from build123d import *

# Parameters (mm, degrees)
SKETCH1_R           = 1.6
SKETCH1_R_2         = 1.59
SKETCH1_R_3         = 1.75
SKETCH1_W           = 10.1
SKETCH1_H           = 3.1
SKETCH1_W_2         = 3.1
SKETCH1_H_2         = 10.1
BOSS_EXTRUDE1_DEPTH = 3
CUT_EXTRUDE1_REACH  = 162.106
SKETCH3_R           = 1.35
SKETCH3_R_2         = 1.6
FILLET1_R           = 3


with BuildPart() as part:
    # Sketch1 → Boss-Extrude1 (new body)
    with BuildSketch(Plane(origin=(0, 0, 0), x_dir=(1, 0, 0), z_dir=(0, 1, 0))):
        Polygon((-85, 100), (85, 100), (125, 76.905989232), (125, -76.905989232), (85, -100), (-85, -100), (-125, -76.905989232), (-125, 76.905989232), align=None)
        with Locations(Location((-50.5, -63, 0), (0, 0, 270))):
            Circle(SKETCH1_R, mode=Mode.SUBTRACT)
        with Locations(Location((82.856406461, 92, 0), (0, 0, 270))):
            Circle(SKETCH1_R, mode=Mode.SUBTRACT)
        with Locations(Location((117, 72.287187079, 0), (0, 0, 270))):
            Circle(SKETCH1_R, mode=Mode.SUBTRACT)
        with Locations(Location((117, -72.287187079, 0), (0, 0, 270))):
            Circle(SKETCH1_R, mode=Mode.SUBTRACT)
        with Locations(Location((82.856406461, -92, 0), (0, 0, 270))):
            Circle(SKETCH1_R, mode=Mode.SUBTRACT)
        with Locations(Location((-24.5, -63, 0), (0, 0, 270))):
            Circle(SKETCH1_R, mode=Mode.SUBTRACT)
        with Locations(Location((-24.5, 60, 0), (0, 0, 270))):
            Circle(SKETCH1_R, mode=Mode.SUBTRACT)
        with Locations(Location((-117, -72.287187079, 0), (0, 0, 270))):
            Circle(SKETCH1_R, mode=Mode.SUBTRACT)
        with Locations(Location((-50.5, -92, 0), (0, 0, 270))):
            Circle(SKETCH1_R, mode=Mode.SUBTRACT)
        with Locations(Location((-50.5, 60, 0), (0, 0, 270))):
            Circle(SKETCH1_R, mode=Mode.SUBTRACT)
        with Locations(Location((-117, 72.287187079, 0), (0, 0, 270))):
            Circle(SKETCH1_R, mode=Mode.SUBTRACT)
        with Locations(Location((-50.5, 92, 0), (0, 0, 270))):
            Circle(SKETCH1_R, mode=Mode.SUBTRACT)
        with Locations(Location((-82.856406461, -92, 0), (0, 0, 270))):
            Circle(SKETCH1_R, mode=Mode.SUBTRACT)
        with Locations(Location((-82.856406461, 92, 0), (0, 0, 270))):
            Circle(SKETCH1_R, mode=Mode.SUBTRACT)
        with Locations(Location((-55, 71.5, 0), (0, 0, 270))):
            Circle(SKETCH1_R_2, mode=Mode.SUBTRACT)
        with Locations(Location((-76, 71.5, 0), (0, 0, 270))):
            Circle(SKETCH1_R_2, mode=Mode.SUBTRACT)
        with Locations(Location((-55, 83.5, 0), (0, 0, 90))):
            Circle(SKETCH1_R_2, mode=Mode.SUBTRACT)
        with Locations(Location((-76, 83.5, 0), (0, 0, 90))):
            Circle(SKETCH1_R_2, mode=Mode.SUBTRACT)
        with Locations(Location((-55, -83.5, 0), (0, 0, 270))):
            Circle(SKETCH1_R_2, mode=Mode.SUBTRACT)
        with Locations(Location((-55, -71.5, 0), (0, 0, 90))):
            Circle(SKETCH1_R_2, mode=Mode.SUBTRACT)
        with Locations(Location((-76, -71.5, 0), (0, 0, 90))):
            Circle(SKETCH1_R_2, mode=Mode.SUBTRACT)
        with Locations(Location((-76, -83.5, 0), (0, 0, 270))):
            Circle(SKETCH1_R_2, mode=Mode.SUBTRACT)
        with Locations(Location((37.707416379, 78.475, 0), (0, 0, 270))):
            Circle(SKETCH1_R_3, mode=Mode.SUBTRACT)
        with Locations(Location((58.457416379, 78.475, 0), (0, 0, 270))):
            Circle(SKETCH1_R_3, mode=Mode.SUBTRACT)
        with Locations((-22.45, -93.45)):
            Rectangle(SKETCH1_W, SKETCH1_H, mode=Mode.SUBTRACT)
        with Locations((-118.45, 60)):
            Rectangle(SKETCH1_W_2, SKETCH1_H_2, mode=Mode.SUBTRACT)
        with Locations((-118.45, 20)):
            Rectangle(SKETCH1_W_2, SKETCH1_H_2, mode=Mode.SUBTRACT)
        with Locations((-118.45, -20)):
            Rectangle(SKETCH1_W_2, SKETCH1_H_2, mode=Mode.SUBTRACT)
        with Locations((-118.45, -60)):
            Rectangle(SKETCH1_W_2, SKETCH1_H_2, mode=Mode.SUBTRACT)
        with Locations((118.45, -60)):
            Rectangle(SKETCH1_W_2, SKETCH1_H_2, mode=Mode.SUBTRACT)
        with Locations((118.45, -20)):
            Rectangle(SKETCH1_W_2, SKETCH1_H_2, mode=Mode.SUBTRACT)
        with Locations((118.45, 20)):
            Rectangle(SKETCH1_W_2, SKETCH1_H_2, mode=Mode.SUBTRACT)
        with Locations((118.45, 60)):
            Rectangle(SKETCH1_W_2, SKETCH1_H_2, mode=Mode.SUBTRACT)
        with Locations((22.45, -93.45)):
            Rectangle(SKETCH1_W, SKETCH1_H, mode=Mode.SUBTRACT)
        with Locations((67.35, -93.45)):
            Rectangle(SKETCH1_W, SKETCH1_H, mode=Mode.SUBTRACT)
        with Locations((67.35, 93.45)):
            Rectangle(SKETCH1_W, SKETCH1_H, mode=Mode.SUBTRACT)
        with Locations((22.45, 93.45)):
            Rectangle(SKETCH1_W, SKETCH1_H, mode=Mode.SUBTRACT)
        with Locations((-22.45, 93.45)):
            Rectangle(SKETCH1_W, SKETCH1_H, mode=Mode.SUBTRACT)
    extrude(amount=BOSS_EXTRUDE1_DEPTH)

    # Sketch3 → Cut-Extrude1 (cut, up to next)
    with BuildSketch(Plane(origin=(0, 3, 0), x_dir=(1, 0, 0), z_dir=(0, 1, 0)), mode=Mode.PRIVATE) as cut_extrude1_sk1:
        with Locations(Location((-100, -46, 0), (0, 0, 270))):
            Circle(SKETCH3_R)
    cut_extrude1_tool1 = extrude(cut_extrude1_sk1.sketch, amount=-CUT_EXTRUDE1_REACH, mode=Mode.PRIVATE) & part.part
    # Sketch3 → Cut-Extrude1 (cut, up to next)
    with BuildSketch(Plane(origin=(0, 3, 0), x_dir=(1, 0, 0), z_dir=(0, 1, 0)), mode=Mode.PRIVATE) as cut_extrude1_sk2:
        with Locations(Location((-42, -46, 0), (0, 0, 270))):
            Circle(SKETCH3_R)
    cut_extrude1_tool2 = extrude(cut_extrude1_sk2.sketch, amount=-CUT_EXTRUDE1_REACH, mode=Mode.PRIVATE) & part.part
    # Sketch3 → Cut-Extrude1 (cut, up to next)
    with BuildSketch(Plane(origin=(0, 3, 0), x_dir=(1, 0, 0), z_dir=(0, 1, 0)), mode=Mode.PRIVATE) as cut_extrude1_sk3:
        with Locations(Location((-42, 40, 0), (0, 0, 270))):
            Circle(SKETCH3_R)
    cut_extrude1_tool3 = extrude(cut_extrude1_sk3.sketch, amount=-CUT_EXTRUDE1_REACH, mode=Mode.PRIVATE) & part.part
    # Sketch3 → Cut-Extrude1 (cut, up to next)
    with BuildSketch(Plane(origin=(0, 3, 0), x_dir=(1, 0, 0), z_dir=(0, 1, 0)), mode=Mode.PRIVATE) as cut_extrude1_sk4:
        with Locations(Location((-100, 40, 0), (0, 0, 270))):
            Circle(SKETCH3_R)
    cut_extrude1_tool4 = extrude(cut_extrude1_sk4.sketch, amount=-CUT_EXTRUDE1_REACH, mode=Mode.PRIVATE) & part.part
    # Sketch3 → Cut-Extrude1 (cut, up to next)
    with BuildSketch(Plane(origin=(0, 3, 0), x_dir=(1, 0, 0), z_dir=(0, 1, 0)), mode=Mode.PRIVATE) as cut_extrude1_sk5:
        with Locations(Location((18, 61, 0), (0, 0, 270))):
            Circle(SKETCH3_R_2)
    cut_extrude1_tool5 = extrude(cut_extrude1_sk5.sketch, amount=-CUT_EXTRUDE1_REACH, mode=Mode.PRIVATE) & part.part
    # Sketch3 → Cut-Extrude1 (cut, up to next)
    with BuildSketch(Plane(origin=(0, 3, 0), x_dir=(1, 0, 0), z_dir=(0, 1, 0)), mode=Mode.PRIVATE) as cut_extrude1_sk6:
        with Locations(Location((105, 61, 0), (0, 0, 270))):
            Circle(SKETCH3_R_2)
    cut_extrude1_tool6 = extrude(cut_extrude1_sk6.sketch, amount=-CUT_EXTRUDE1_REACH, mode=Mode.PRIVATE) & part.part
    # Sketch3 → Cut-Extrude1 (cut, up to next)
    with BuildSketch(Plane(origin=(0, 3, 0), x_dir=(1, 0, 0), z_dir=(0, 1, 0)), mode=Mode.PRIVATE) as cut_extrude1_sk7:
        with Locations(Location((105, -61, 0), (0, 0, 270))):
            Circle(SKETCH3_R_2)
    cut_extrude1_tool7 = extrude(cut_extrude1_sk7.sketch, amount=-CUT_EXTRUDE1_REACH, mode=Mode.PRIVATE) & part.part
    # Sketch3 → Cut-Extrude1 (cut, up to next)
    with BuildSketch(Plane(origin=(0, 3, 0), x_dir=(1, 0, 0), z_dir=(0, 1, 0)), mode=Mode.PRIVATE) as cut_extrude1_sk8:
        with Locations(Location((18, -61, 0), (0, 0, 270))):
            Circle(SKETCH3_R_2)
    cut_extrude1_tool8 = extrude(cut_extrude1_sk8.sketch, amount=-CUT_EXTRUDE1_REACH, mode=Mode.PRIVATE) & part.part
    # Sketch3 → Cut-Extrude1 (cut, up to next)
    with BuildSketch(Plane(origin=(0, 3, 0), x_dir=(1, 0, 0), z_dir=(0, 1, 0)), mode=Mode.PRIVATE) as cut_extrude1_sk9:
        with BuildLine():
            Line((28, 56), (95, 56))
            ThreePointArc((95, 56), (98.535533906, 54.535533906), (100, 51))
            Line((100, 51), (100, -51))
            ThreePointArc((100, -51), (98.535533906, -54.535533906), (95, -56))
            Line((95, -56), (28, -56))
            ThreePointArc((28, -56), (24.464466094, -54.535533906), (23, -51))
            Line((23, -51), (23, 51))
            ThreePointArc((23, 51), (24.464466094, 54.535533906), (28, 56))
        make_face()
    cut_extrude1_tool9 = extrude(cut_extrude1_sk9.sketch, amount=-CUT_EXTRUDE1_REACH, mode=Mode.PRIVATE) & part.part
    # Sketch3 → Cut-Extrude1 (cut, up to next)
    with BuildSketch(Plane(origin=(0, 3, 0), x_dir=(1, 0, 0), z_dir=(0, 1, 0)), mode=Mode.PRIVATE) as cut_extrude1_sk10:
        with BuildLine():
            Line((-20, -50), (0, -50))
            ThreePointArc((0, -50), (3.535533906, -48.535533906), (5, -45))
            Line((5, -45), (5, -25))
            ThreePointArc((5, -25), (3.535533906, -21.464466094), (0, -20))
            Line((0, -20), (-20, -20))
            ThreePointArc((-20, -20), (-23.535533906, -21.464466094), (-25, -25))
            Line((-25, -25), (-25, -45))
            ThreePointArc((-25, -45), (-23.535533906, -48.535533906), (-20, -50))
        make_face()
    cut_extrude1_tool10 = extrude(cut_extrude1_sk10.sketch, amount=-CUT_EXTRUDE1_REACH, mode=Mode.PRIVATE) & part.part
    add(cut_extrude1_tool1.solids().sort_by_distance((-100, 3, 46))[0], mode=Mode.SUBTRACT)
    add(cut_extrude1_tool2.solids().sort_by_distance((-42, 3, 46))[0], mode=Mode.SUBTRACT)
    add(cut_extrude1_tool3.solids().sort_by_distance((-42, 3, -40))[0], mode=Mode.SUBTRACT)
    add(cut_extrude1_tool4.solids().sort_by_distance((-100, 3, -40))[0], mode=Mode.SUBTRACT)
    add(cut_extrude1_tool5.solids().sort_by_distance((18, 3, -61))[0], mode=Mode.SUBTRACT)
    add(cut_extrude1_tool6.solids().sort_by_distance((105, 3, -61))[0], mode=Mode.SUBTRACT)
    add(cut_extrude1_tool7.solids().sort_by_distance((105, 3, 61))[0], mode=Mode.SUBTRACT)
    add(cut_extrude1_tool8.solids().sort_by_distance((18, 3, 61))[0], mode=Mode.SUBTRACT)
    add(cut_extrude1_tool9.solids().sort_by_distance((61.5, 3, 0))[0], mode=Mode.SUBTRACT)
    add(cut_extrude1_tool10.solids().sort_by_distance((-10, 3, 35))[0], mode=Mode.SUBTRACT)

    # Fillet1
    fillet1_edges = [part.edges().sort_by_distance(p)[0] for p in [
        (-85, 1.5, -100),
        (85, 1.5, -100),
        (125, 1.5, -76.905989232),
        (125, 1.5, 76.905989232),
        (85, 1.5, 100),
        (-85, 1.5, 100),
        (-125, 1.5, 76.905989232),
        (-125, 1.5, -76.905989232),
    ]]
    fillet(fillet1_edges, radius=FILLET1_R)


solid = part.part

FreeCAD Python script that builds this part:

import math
import FreeCAD as App
import Part
import Sketcher

V = App.Vector
Q = App.Units.Quantity


def edges_at(feature, points):
    """Names of the edges that pass closest to the given points."""
    edges = feature.Shape.Edges
    near = lambda p: min(range(len(edges)), key=lambda i: edges[i].distToShape(Part.Vertex(*p))[0])
    return sorted({f"Edge{near(p) + 1}" for p in points})


def add_polygon(sketch, points):
    """Adds a closed chain of lines whose ends are joined by coincident constraints."""
    first, n = sketch.GeometryCount, len(points)
    for a, b in zip(points, points[1:] + points[:1]):
        sketch.addGeometry(Part.LineSegment(App.Vector(*a, 0), App.Vector(*b, 0)), False)
    for i in range(n):
        sketch.addConstraint(Sketcher.Constraint("Coincident", first + i, 2, first + (i + 1) % n, 1))

doc = App.newDocument("Part")
body = doc.addObject("PartDesign::Body", "Body")

# Sketch on XZ plane
sketch1 = body.newObject("Sketcher::SketchObject", "Sketch")
sketch1.AttachmentSupport = (doc.getObject("XZ_Plane"), [""])
sketch1.MapMode = "FlatFace"
add_polygon(sketch1, [(85, -100), (-85, -100), (-125, -76.905989), (-125, 76.905989), (-85, 100), (85, 100), (125, 76.905989), (125, -76.905989)])  # lines 0-7
sketch1.addGeometry(Part.Circle(V(117, 72.287187, 0), V(0, 0, 1), 1.6), False)  # 8
sketch1.addGeometry(Part.Circle(V(82.856406, 92, 0), V(0, 0, 1), 1.6), False)  # 9
add_polygon(sketch1, [(62.3, 95), (62.3, 91.9), (72.4, 91.9), (72.4, 95)])  # lines 10-13
add_polygon(sketch1, [(116.9, 65.05), (116.9, 54.95), (120, 54.95), (120, 65.05)])  # lines 14-17
add_polygon(sketch1, [(17.4, 95), (17.4, 91.9), (27.5, 91.9), (27.5, 95)])  # lines 18-21
add_polygon(sketch1, [(116.9, 25.05), (116.9, 14.95), (120, 14.95), (120, 25.05)])  # lines 22-25
add_polygon(sketch1, [(-27.5, 95), (-27.5, 91.9), (-17.4, 91.9), (-17.4, 95)])  # lines 26-29
sketch1.addGeometry(Part.Circle(V(-50.5, 92, 0), V(0, 0, 1), 1.6), False)  # 30
sketch1.addGeometry(Part.Circle(V(-55, 83.5, 0), V(0, 0, 1), 1.59), False)  # 31
sketch1.addGeometry(Part.Circle(V(-55, 71.5, 0), V(0, 0, 1), 1.59), False)  # 32
sketch1.addGeometry(Part.Circle(V(-24.5, 63, 0), V(0, 0, 1), 1.6), False)  # 33
sketch1.addGeometry(Part.Circle(V(-50.5, 63, 0), V(0, 0, 1), 1.6), False)  # 34
sketch1.addGeometry(Part.Circle(V(-82.856406, 92, 0), V(0, 0, 1), 1.6), False)  # 35
sketch1.addGeometry(Part.Circle(V(-76, 83.5, 0), V(0, 0, 1), 1.59), False)  # 36
sketch1.addGeometry(Part.Circle(V(-76, 71.5, 0), V(0, 0, 1), 1.59), False)  # 37
sketch1.addGeometry(Part.Circle(V(-117, 72.287187, 0), V(0, 0, 1), 1.6), False)  # 38
add_polygon(sketch1, [(-120, 65.05), (-120, 54.95), (-116.9, 54.95), (-116.9, 65.05)])  # lines 39-42
add_polygon(sketch1, [(-120, 25.05), (-120, 14.95), (-116.9, 14.95), (-116.9, 25.05)])  # lines 43-46
add_polygon(sketch1, [(116.9, -14.95), (116.9, -25.05), (120, -25.05), (120, -14.95)])  # lines 47-50
add_polygon(sketch1, [(116.9, -54.95), (116.9, -65.05), (120, -65.05), (120, -54.95)])  # lines 51-54
sketch1.addGeometry(Part.Circle(V(117, -72.287187, 0), V(0, 0, 1), 1.6), False)  # 55
sketch1.addGeometry(Part.Circle(V(82.856406, -92, 0), V(0, 0, 1), 1.6), False)  # 56
add_polygon(sketch1, [(62.3, -91.9), (62.3, -95), (72.4, -95), (72.4, -91.9)])  # lines 57-60
sketch1.addGeometry(Part.Circle(V(58.457416, -78.475, 0), V(0, 0, 1), 1.75), False)  # 61
sketch1.addGeometry(Part.Circle(V(37.707416, -78.475, 0), V(0, 0, 1), 1.75), False)  # 62
add_polygon(sketch1, [(17.4, -91.9), (17.4, -95), (27.5, -95), (27.5, -91.9)])  # lines 63-66
add_polygon(sketch1, [(-120, -14.95), (-120, -25.05), (-116.9, -25.05), (-116.9, -14.95)])  # lines 67-70
sketch1.addGeometry(Part.Circle(V(-24.5, -60, 0), V(0, 0, 1), 1.6), False)  # 71
sketch1.addGeometry(Part.Circle(V(-50.5, -60, 0), V(0, 0, 1), 1.6), False)  # 72
add_polygon(sketch1, [(-27.5, -91.9), (-27.5, -95), (-17.4, -95), (-17.4, -91.9)])  # lines 73-76
sketch1.addGeometry(Part.Circle(V(-55, -71.5, 0), V(0, 0, 1), 1.59), False)  # 77
sketch1.addGeometry(Part.Circle(V(-55, -83.5, 0), V(0, 0, 1), 1.59), False)  # 78
sketch1.addGeometry(Part.Circle(V(-50.5, -92, 0), V(0, 0, 1), 1.6), False)  # 79
add_polygon(sketch1, [(-120, -54.95), (-120, -65.05), (-116.9, -65.05), (-116.9, -54.95)])  # lines 80-83
sketch1.addGeometry(Part.Circle(V(-76, -71.5, 0), V(0, 0, 1), 1.59), False)  # 84
sketch1.addGeometry(Part.Circle(V(-76, -83.5, 0), V(0, 0, 1), 1.59), False)  # 85
sketch1.addGeometry(Part.Circle(V(-82.856406, -92, 0), V(0, 0, 1), 1.6), False)  # 86
sketch1.addGeometry(Part.Circle(V(-117, -72.287187, 0), V(0, 0, 1), 1.6), False)  # 87
sketch1.addConstraint(Sketcher.Constraint("Horizontal", 0))
sketch1.addConstraint(Sketcher.Constraint("Vertical", 2))
sketch1.addConstraint(Sketcher.Constraint("Horizontal", 4))
sketch1.addConstraint(Sketcher.Constraint("Vertical", 6))
sketch1.addConstraint(Sketcher.Constraint("Vertical", 10))
sketch1.addConstraint(Sketcher.Constraint("Horizontal", 11))
sketch1.addConstraint(Sketcher.Constraint("Vertical", 12))
sketch1.addConstraint(Sketcher.Constraint("Horizontal", 13))
sketch1.addConstraint(Sketcher.Constraint("Vertical", 14))
sketch1.addConstraint(Sketcher.Constraint("Horizontal", 15))
sketch1.addConstraint(Sketcher.Constraint("Vertical", 16))
sketch1.addConstraint(Sketcher.Constraint("Horizontal", 17))
sketch1.addConstraint(Sketcher.Constraint("Vertical", 18))
sketch1.addConstraint(Sketcher.Constraint("Horizontal", 19))
sketch1.addConstraint(Sketcher.Constraint("Vertical", 20))
sketch1.addConstraint(Sketcher.Constraint("Horizontal", 21))
sketch1.addConstraint(Sketcher.Constraint("Vertical", 22))
sketch1.addConstraint(Sketcher.Constraint("Horizontal", 23))
sketch1.addConstraint(Sketcher.Constraint("Vertical", 24))
sketch1.addConstraint(Sketcher.Constraint("Horizontal", 25))
sketch1.addConstraint(Sketcher.Constraint("Vertical", 26))
sketch1.addConstraint(Sketcher.Constraint("Horizontal", 27))
sketch1.addConstraint(Sketcher.Constraint("Vertical", 28))
sketch1.addConstraint(Sketcher.Constraint("Horizontal", 29))
sketch1.addConstraint(Sketcher.Constraint("Vertical", 39))
sketch1.addConstraint(Sketcher.Constraint("Horizontal", 40))
sketch1.addConstraint(Sketcher.Constraint("Vertical", 41))
sketch1.addConstraint(Sketcher.Constraint("Horizontal", 42))
sketch1.addConstraint(Sketcher.Constraint("Vertical", 43))
sketch1.addConstraint(Sketcher.Constraint("Horizontal", 44))
sketch1.addConstraint(Sketcher.Constraint("Vertical", 45))
sketch1.addConstraint(Sketcher.Constraint("Horizontal", 46))
sketch1.addConstraint(Sketcher.Constraint("Vertical", 47))
sketch1.addConstraint(Sketcher.Constraint("Horizontal", 48))
sketch1.addConstraint(Sketcher.Constraint("Vertical", 49))
sketch1.addConstraint(Sketcher.Constraint("Horizontal", 50))
sketch1.addConstraint(Sketcher.Constraint("Vertical", 51))
sketch1.addConstraint(Sketcher.Constraint("Horizontal", 52))
sketch1.addConstraint(Sketcher.Constraint("Vertical", 53))
sketch1.addConstraint(Sketcher.Constraint("Horizontal", 54))
sketch1.addConstraint(Sketcher.Constraint("Vertical", 57))
sketch1.addConstraint(Sketcher.Constraint("Horizontal", 58))
sketch1.addConstraint(Sketcher.Constraint("Vertical", 59))
sketch1.addConstraint(Sketcher.Constraint("Horizontal", 60))
sketch1.addConstraint(Sketcher.Constraint("Vertical", 63))
sketch1.addConstraint(Sketcher.Constraint("Horizontal", 64))
sketch1.addConstraint(Sketcher.Constraint("Vertical", 65))
sketch1.addConstraint(Sketcher.Constraint("Horizontal", 66))
sketch1.addConstraint(Sketcher.Constraint("Vertical", 67))
sketch1.addConstraint(Sketcher.Constraint("Horizontal", 68))
sketch1.addConstraint(Sketcher.Constraint("Vertical", 69))
sketch1.addConstraint(Sketcher.Constraint("Horizontal", 70))
sketch1.addConstraint(Sketcher.Constraint("Vertical", 73))
sketch1.addConstraint(Sketcher.Constraint("Horizontal", 74))
sketch1.addConstraint(Sketcher.Constraint("Vertical", 75))
sketch1.addConstraint(Sketcher.Constraint("Horizontal", 76))
sketch1.addConstraint(Sketcher.Constraint("Vertical", 80))
sketch1.addConstraint(Sketcher.Constraint("Horizontal", 81))
sketch1.addConstraint(Sketcher.Constraint("Vertical", 82))
sketch1.addConstraint(Sketcher.Constraint("Horizontal", 83))
sketch1.addConstraint(Sketcher.Constraint("Equal", 8, 9))
sketch1.addConstraint(Sketcher.Constraint("Equal", 9, 30))
sketch1.addConstraint(Sketcher.Constraint("Equal", 31, 32))
sketch1.addConstraint(Sketcher.Constraint("Equal", 30, 33))
sketch1.addConstraint(Sketcher.Constraint("Equal", 33, 34))
sketch1.addConstraint(Sketcher.Constraint("Equal", 34, 35))
sketch1.addConstraint(Sketcher.Constraint("Equal", 32, 36))
sketch1.addConstraint(Sketcher.Constraint("Equal", 36, 37))
sketch1.addConstraint(Sketcher.Constraint("Equal", 35, 38))
sketch1.addConstraint(Sketcher.Constraint("Equal", 38, 55))
sketch1.addConstraint(Sketcher.Constraint("Equal", 55, 56))
sketch1.addConstraint(Sketcher.Constraint("Equal", 61, 62))
sketch1.addConstraint(Sketcher.Constraint("Equal", 56, 71))
sketch1.addConstraint(Sketcher.Constraint("Equal", 71, 72))
sketch1.addConstraint(Sketcher.Constraint("Equal", 37, 77))
sketch1.addConstraint(Sketcher.Constraint("Equal", 77, 78))
sketch1.addConstraint(Sketcher.Constraint("Equal", 72, 79))
sketch1.addConstraint(Sketcher.Constraint("Equal", 78, 84))
sketch1.addConstraint(Sketcher.Constraint("Equal", 84, 85))
sketch1.addConstraint(Sketcher.Constraint("Equal", 79, 86))
sketch1.addConstraint(Sketcher.Constraint("Equal", 86, 87))
sketch1.addConstraint(Sketcher.Constraint("Symmetric", 38, 3, 55, 3, -1, 1))
sketch1.addConstraint(Sketcher.Constraint("Symmetric", 35, 3, 56, 3, -1, 1))
sketch1.addConstraint(Sketcher.Constraint("Symmetric", 9, 3, 86, 3, -1, 1))
sketch1.addConstraint(Sketcher.Constraint("Symmetric", 8, 3, 87, 3, -1, 1))
sketch1.addConstraint(Sketcher.Constraint("Symmetric", 0, 2, 4, 2, -1, 1))
sketch1.addConstraint(Sketcher.Constraint("Symmetric", 1, 2, 5, 2, -1, 1))
sketch1.addConstraint(Sketcher.Constraint("Symmetric", 45, 2, 47, 2, -1, 1))
sketch1.addConstraint(Sketcher.Constraint("Symmetric", 43, 2, 49, 2, -1, 1))
sketch1.addConstraint(Sketcher.Constraint("Symmetric", 41, 2, 51, 2, -1, 1))
sketch1.addConstraint(Sketcher.Constraint("Symmetric", 39, 2, 53, 2, -1, 1))
sketch1.addConstraint(Sketcher.Constraint("Symmetric", 28, 2, 63, 2, -1, 1))
sketch1.addConstraint(Sketcher.Constraint("Symmetric", 26, 2, 65, 2, -1, 1))
sketch1.addConstraint(Sketcher.Constraint("Symmetric", 24, 2, 67, 2, -1, 1))
sketch1.addConstraint(Sketcher.Constraint("Symmetric", 22, 2, 69, 2, -1, 1))
sketch1.addConstraint(Sketcher.Constraint("Symmetric", 20, 2, 73, 2, -1, 1))
sketch1.addConstraint(Sketcher.Constraint("Symmetric", 18, 2, 75, 2, -1, 1))
sketch1.addConstraint(Sketcher.Constraint("Symmetric", 16, 2, 80, 2, -1, 1))
sketch1.addConstraint(Sketcher.Constraint("Symmetric", 14, 2, 82, 2, -1, 1))
sketch1.addConstraint(Sketcher.Constraint("Symmetric", 9, 3, 35, 3, -2))
sketch1.addConstraint(Sketcher.Constraint("Symmetric", 8, 3, 38, 3, -2))
sketch1.addConstraint(Sketcher.Constraint("Symmetric", 19, 2, 26, 2, -2))
sketch1.addConstraint(Sketcher.Constraint("Symmetric", 21, 2, 28, 2, -2))
sketch1.addConstraint(Sketcher.Constraint("Symmetric", 15, 2, 39, 2, -2))
sketch1.addConstraint(Sketcher.Constraint("Symmetric", 17, 2, 41, 2, -2))
sketch1.addConstraint(Sketcher.Constraint("Symmetric", 23, 2, 43, 2, -2))
sketch1.addConstraint(Sketcher.Constraint("Symmetric", 25, 2, 45, 2, -2))
sketch1.addConstraint(Sketcher.Constraint("Symmetric", 32, 3, 77, 3, -1))
sketch1.addConstraint(Sketcher.Constraint("Symmetric", 31, 3, 78, 3, -1))
sketch1.addConstraint(Sketcher.Constraint("Symmetric", 30, 3, 79, 3, -1))
sketch1.addConstraint(Sketcher.Constraint("Symmetric", 37, 3, 84, 3, -1))
sketch1.addConstraint(Sketcher.Constraint("Symmetric", 36, 3, 85, 3, -1))
sketch1.addConstraint(Sketcher.Constraint("Symmetric", 13, 2, 57, 2, -1))
sketch1.addConstraint(Sketcher.Constraint("Symmetric", 11, 2, 59, 2, -1))
sketch1.addConstraint(Sketcher.Constraint("Parallel", 3, 7))
sketch1.addConstraint(Sketcher.Constraint("Horizontal", 9, 3, 30, 3))
sketch1.addConstraint(Sketcher.Constraint("Horizontal", 33, 3, 34, 3))
sketch1.addConstraint(Sketcher.Constraint("Horizontal", 31, 3, 36, 3))
sketch1.addConstraint(Sketcher.Constraint("Horizontal", 32, 3, 37, 3))
sketch1.addConstraint(Sketcher.Constraint("Horizontal", 61, 3, 62, 3))
sketch1.addConstraint(Sketcher.Constraint("Horizontal", 71, 3, 72, 3))
sketch1.addConstraint(Sketcher.Constraint("Horizontal", 2, 2, 5, 2))
sketch1.addConstraint(Sketcher.Constraint("Horizontal", 1, 2, 6, 2))
sketch1.addConstraint(Sketcher.Constraint("Horizontal", 11, 2, 18, 2))
sketch1.addConstraint(Sketcher.Constraint("Horizontal", 13, 2, 20, 2))
sketch1.addConstraint(Sketcher.Constraint("Vertical", 31, 3, 32, 3))
sketch1.addConstraint(Sketcher.Constraint("Vertical", 30, 3, 34, 3))
sketch1.addConstraint(Sketcher.Constraint("Vertical", 36, 3, 37, 3))
sketch1.addConstraint(Sketcher.Constraint("Vertical", 33, 3, 71, 3))
sketch1.addConstraint(Sketcher.Constraint("Vertical", 34, 3, 72, 3))
sketch1.addConstraint(Sketcher.Constraint("Vertical", 0, 2, 3, 2))
sketch1.addConstraint(Sketcher.Constraint("Vertical", 17, 2, 22, 2))
sketch1.addConstraint(Sketcher.Constraint("Vertical", 16, 2, 23, 2))
sketch1.addConstraint(Sketcher.Constraint("Equal", 13, 19))
sketch1.addConstraint(Sketcher.Constraint("Equal", 83, 10))
sketch1.addConstraint(Sketcher.Constraint("Equal", 76, 14))
sketch1.addConstraint(Sketcher.Constraint("Equal", 16, 22))
sketch1.addConstraint(Sketcher.Constraint("Diameter", 8, 3.2))
sketch1.addConstraint(Sketcher.Constraint("Diameter", 61, 3.5))
sketch1.addConstraint(Sketcher.Constraint("Diameter", 31, 3.18))
sketch1.addConstraint(Sketcher.Constraint("DistanceX", 0, 2, 0, 1, 170.0))
sketch1.addConstraint(Sketcher.Constraint("Angle", 1, Q("150 deg")))
sketch1.addConstraint(Sketcher.Constraint("DistanceX", 11, 1, 11, 2, 10.1))
sketch1.addConstraint(Sketcher.Constraint("DistanceX", 15, 1, 15, 2, 3.1))
sketch1.addConstraint(Sketcher.Constraint("DistanceX", -1, 1, 8, 3, 117.0))
sketch1.addConstraint(Sketcher.Constraint("DistanceY", -1, 1, 9, 3, 92.0))
sketch1.addConstraint(Sketcher.Constraint("DistanceX", 31, 3, -1, 1, 55.0))
sketch1.addConstraint(Sketcher.Constraint("DistanceY", -1, 1, 33, 3, 63.0))
sketch1.addConstraint(Sketcher.Constraint("DistanceX", 36, 3, -1, 1, 76.0))
sketch1.addConstraint(Sketcher.Constraint("DistanceY", 71, 3, -1, 1, 60.0))
sketch1.addConstraint(Sketcher.Constraint("DistanceY", 0, 2, -1, 1, 100.0))
sketch1.addConstraint(Sketcher.Constraint("DistanceX", 1, 2, -1, 1, 125.0))
sketch1.addConstraint(Sketcher.Constraint("DistanceY", -1, 1, 12, 2, 95.0))
sketch1.addConstraint(Sketcher.Constraint("DistanceX", -1, 1, 15, 2, 120.0))
sketch1.addConstraint(Sketcher.Constraint("DistanceX", 30, 3, -1, 1, 50.5))
sketch1.addConstraint(Sketcher.Constraint("DistanceY", -1, 1, 31, 3, 83.5))
sketch1.addConstraint(Sketcher.Constraint("DistanceY", -1, 1, 32, 3, 71.5))
sketch1.addConstraint(Sketcher.Constraint("DistanceX", 33, 3, -1, 1, 24.5))
sketch1.addConstraint(Sketcher.Constraint("DistanceX", -1, 1, 10, 2, 62.3))
sketch1.addConstraint(Sketcher.Constraint("DistanceX", -1, 1, 18, 2, 17.4))
sketch1.addConstraint(Sketcher.Constraint("DistanceY", -1, 1, 14, 2, 54.95))
sketch1.addConstraint(Sketcher.Constraint("DistanceY", -1, 1, 22, 2, 14.95))
sketch1.addConstraint(Sketcher.Constraint("DistanceY", 61, 3, -1, 1, 78.475))
sketch1.addConstraint(Sketcher.Constraint("DistanceY", -1, 1, 8, 3, 72.287187))
sketch1.addConstraint(Sketcher.Constraint("DistanceX", -1, 1, 9, 3, 82.856406))
sketch1.addConstraint(Sketcher.Constraint("DistanceX", -1, 1, 61, 3, 58.457416))
sketch1.addConstraint(Sketcher.Constraint("DistanceX", -1, 1, 62, 3, 37.707416))
pad1 = body.newObject("PartDesign::Pad", "Pad")
pad1.Profile = sketch1
pad1.Length = 3
pad1.Reversed = True

# Sketch on XZ plane
sketch2 = body.newObject("Sketcher::SketchObject", "Sketch001")
sketch2.AttachmentSupport = (doc.getObject("XZ_Plane"), [""])
sketch2.MapMode = "FlatFace"
sketch2.AttachmentOffset = App.Placement(V(0, 0, -3), App.Rotation())
sketch2.addGeometry(Part.Circle(V(-100, 46, 0), V(0, 0, 1), 1.35), False)
sketch2.addConstraint(Sketcher.Constraint("Diameter", 0, 2.7))
sketch2.addConstraint(Sketcher.Constraint("DistanceX", 0, 3, -1, 1, 100.0))
sketch2.addConstraint(Sketcher.Constraint("DistanceY", -1, 1, 0, 3, 46.0))
pocket1 = body.newObject("PartDesign::Pocket", "Pocket")
pocket1.Profile = sketch2
pocket1.Type = "UpToFirst"
pocket1.Reversed = True

# Sketch on XZ plane
sketch3 = body.newObject("Sketcher::SketchObject", "Sketch002")
sketch3.AttachmentSupport = (doc.getObject("XZ_Plane"), [""])
sketch3.MapMode = "FlatFace"
sketch3.AttachmentOffset = App.Placement(V(0, 0, -3), App.Rotation())
sketch3.addGeometry(Part.Circle(V(-42, 46, 0), V(0, 0, 1), 1.35), False)
sketch3.addConstraint(Sketcher.Constraint("Diameter", 0, 2.7))
sketch3.addConstraint(Sketcher.Constraint("DistanceX", 0, 3, -1, 1, 42.0))
sketch3.addConstraint(Sketcher.Constraint("DistanceY", -1, 1, 0, 3, 46.0))
pocket2 = body.newObject("PartDesign::Pocket", "Pocket001")
pocket2.Profile = sketch3
pocket2.Type = "UpToFirst"
pocket2.Reversed = True

# Sketch on XZ plane
sketch4 = body.newObject("Sketcher::SketchObject", "Sketch003")
sketch4.AttachmentSupport = (doc.getObject("XZ_Plane"), [""])
sketch4.MapMode = "FlatFace"
sketch4.AttachmentOffset = App.Placement(V(0, 0, -3), App.Rotation())
sketch4.addGeometry(Part.Circle(V(-42, -40, 0), V(0, 0, 1), 1.35), False)
sketch4.addConstraint(Sketcher.Constraint("Diameter", 0, 2.7))
sketch4.addConstraint(Sketcher.Constraint("DistanceX", 0, 3, -1, 1, 42.0))
sketch4.addConstraint(Sketcher.Constraint("DistanceY", 0, 3, -1, 1, 40.0))
pocket3 = body.newObject("PartDesign::Pocket", "Pocket002")
pocket3.Profile = sketch4
pocket3.Type = "UpToFirst"
pocket3.Reversed = True

# Sketch on XZ plane
sketch5 = body.newObject("Sketcher::SketchObject", "Sketch004")
sketch5.AttachmentSupport = (doc.getObject("XZ_Plane"), [""])
sketch5.MapMode = "FlatFace"
sketch5.AttachmentOffset = App.Placement(V(0, 0, -3), App.Rotation())
sketch5.addGeometry(Part.Circle(V(-100, -40, 0), V(0, 0, 1), 1.35), False)
sketch5.addConstraint(Sketcher.Constraint("Diameter", 0, 2.7))
sketch5.addConstraint(Sketcher.Constraint("DistanceX", 0, 3, -1, 1, 100.0))
sketch5.addConstraint(Sketcher.Constraint("DistanceY", 0, 3, -1, 1, 40.0))
pocket4 = body.newObject("PartDesign::Pocket", "Pocket003")
pocket4.Profile = sketch5
pocket4.Type = "UpToFirst"
pocket4.Reversed = True

# Sketch on XZ plane
sketch6 = body.newObject("Sketcher::SketchObject", "Sketch005")
sketch6.AttachmentSupport = (doc.getObject("XZ_Plane"), [""])
sketch6.MapMode = "FlatFace"
sketch6.AttachmentOffset = App.Placement(V(0, 0, -3), App.Rotation())
sketch6.addGeometry(Part.Circle(V(18, -61, 0), V(0, 0, 1), 1.6), False)
sketch6.addConstraint(Sketcher.Constraint("Diameter", 0, 3.2))
sketch6.addConstraint(Sketcher.Constraint("DistanceX", -1, 1, 0, 3, 18.0))
sketch6.addConstraint(Sketcher.Constraint("DistanceY", 0, 3, -1, 1, 61.0))
pocket5 = body.newObject("PartDesign::Pocket", "Pocket004")
pocket5.Profile = sketch6
pocket5.Type = "UpToFirst"
pocket5.Reversed = True

# Sketch on XZ plane
sketch7 = body.newObject("Sketcher::SketchObject", "Sketch006")
sketch7.AttachmentSupport = (doc.getObject("XZ_Plane"), [""])
sketch7.MapMode = "FlatFace"
sketch7.AttachmentOffset = App.Placement(V(0, 0, -3), App.Rotation())
sketch7.addGeometry(Part.Circle(V(105, -61, 0), V(0, 0, 1), 1.6), False)
sketch7.addConstraint(Sketcher.Constraint("Diameter", 0, 3.2))
sketch7.addConstraint(Sketcher.Constraint("DistanceX", -1, 1, 0, 3, 105.0))
sketch7.addConstraint(Sketcher.Constraint("DistanceY", 0, 3, -1, 1, 61.0))
pocket6 = body.newObject("PartDesign::Pocket", "Pocket005")
pocket6.Profile = sketch7
pocket6.Type = "UpToFirst"
pocket6.Reversed = True

# Sketch on XZ plane
sketch8 = body.newObject("Sketcher::SketchObject", "Sketch007")
sketch8.AttachmentSupport = (doc.getObject("XZ_Plane"), [""])
sketch8.MapMode = "FlatFace"
sketch8.AttachmentOffset = App.Placement(V(0, 0, -3), App.Rotation())
sketch8.addGeometry(Part.Circle(V(105, 61, 0), V(0, 0, 1), 1.6), False)
sketch8.addConstraint(Sketcher.Constraint("Diameter", 0, 3.2))
sketch8.addConstraint(Sketcher.Constraint("DistanceX", -1, 1, 0, 3, 105.0))
sketch8.addConstraint(Sketcher.Constraint("DistanceY", -1, 1, 0, 3, 61.0))
pocket7 = body.newObject("PartDesign::Pocket", "Pocket006")
pocket7.Profile = sketch8
pocket7.Type = "UpToFirst"
pocket7.Reversed = True

# Sketch on XZ plane
sketch9 = body.newObject("Sketcher::SketchObject", "Sketch008")
sketch9.AttachmentSupport = (doc.getObject("XZ_Plane"), [""])
sketch9.MapMode = "FlatFace"
sketch9.AttachmentOffset = App.Placement(V(0, 0, -3), App.Rotation())
sketch9.addGeometry(Part.Circle(V(18, 61, 0), V(0, 0, 1), 1.6), False)
sketch9.addConstraint(Sketcher.Constraint("Diameter", 0, 3.2))
sketch9.addConstraint(Sketcher.Constraint("DistanceX", -1, 1, 0, 3, 18.0))
sketch9.addConstraint(Sketcher.Constraint("DistanceY", -1, 1, 0, 3, 61.0))
pocket8 = body.newObject("PartDesign::Pocket", "Pocket007")
pocket8.Profile = sketch9
pocket8.Type = "UpToFirst"
pocket8.Reversed = True

# Sketch on XZ plane
sketch10 = body.newObject("Sketcher::SketchObject", "Sketch009")
sketch10.AttachmentSupport = (doc.getObject("XZ_Plane"), [""])
sketch10.MapMode = "FlatFace"
sketch10.AttachmentOffset = App.Placement(V(0, 0, -3), App.Rotation())
sketch10.addGeometry(Part.LineSegment(V(95, -56, 0), V(28, -56, 0)), False)
sketch10.addGeometry(Part.ArcOfCircle(Part.Circle(V(28, -51, 0), V(0, 0, 1), 5), math.radians(180), math.radians(270)), False)
sketch10.addGeometry(Part.LineSegment(V(23, -51, 0), V(23, 51, 0)), False)
sketch10.addGeometry(Part.ArcOfCircle(Part.Circle(V(28, 51, 0), V(0, 0, 1), 5), math.radians(90), math.radians(180)), False)
sketch10.addGeometry(Part.LineSegment(V(28, 56, 0), V(95, 56, 0)), False)
sketch10.addGeometry(Part.ArcOfCircle(Part.Circle(V(95, 51, 0), V(0, 0, 1), 5), math.radians(0), math.radians(90)), False)
sketch10.addGeometry(Part.LineSegment(V(100, 51, 0), V(100, -51, 0)), False)
sketch10.addGeometry(Part.ArcOfCircle(Part.Circle(V(95, -51, 0), V(0, 0, 1), 5), math.radians(-90), math.radians(0)), False)
sketch10.addConstraint(Sketcher.Constraint("Tangent", 0, 2, 1, 2))
sketch10.addConstraint(Sketcher.Constraint("Tangent", 1, 1, 2, 1))
sketch10.addConstraint(Sketcher.Constraint("Tangent", 2, 2, 3, 2))
sketch10.addConstraint(Sketcher.Constraint("Tangent", 3, 1, 4, 1))
sketch10.addConstraint(Sketcher.Constraint("Tangent", 4, 2, 5, 2))
sketch10.addConstraint(Sketcher.Constraint("Tangent", 5, 1, 6, 1))
sketch10.addConstraint(Sketcher.Constraint("Tangent", 6, 2, 7, 2))
sketch10.addConstraint(Sketcher.Constraint("Tangent", 7, 1, 0, 1))
sketch10.addConstraint(Sketcher.Constraint("Horizontal", 0))
sketch10.addConstraint(Sketcher.Constraint("Vertical", 2))
sketch10.addConstraint(Sketcher.Constraint("Horizontal", 4))
sketch10.addConstraint(Sketcher.Constraint("Vertical", 6))
sketch10.addConstraint(Sketcher.Constraint("Equal", 1, 3))
sketch10.addConstraint(Sketcher.Constraint("Equal", 3, 5))
sketch10.addConstraint(Sketcher.Constraint("Equal", 5, 7))
sketch10.addConstraint(Sketcher.Constraint("Radius", 1, 5.0))
sketch10.addConstraint(Sketcher.Constraint("DistanceX", 0, 2, 0, 1, 67.0))
sketch10.addConstraint(Sketcher.Constraint("DistanceY", 2, 1, 2, 2, 102.0))
sketch10.addConstraint(Sketcher.Constraint("DistanceX", -1, 1, 1, 3, 28.0))
sketch10.addConstraint(Sketcher.Constraint("DistanceY", 1, 3, -1, 1, 51.0))
pocket9 = body.newObject("PartDesign::Pocket", "Pocket008")
pocket9.Profile = sketch10
pocket9.Type = "UpToFirst"
pocket9.Reversed = True

# Sketch on XZ plane
sketch11 = body.newObject("Sketcher::SketchObject", "Sketch010")
sketch11.AttachmentSupport = (doc.getObject("XZ_Plane"), [""])
sketch11.MapMode = "FlatFace"
sketch11.AttachmentOffset = App.Placement(V(0, 0, -3), App.Rotation())
sketch11.addGeometry(Part.LineSegment(V(-20, 50, 0), V(0, 50, 0)), False)
sketch11.addGeometry(Part.ArcOfCircle(Part.Circle(V(0, 45, 0), V(0, 0, 1), 5), math.radians(0), math.radians(90)), False)
sketch11.addGeometry(Part.LineSegment(V(5, 45, 0), V(5, 25, 0)), False)
sketch11.addGeometry(Part.ArcOfCircle(Part.Circle(V(0, 25, 0), V(0, 0, 1), 5), math.radians(-90), math.radians(0)), False)
sketch11.addGeometry(Part.LineSegment(V(0, 20, 0), V(-20, 20, 0)), False)
sketch11.addGeometry(Part.ArcOfCircle(Part.Circle(V(-20, 25, 0), V(0, 0, 1), 5), math.radians(180), math.radians(270)), False)
sketch11.addGeometry(Part.LineSegment(V(-25, 25, 0), V(-25, 45, 0)), False)
sketch11.addGeometry(Part.ArcOfCircle(Part.Circle(V(-20, 45, 0), V(0, 0, 1), 5), math.radians(90), math.radians(180)), False)
sketch11.addConstraint(Sketcher.Constraint("Tangent", 0, 2, 1, 2))
sketch11.addConstraint(Sketcher.Constraint("Tangent", 1, 1, 2, 1))
sketch11.addConstraint(Sketcher.Constraint("Tangent", 2, 2, 3, 2))
sketch11.addConstraint(Sketcher.Constraint("Tangent", 3, 1, 4, 1))
sketch11.addConstraint(Sketcher.Constraint("Tangent", 4, 2, 5, 2))
sketch11.addConstraint(Sketcher.Constraint("Tangent", 5, 1, 6, 1))
sketch11.addConstraint(Sketcher.Constraint("Tangent", 6, 2, 7, 2))
sketch11.addConstraint(Sketcher.Constraint("Tangent", 7, 1, 0, 1))
sketch11.addConstraint(Sketcher.Constraint("Horizontal", 0))
sketch11.addConstraint(Sketcher.Constraint("Vertical", 2))
sketch11.addConstraint(Sketcher.Constraint("Horizontal", 4))
sketch11.addConstraint(Sketcher.Constraint("Vertical", 6))
sketch11.addConstraint(Sketcher.Constraint("Equal", 1, 3))
sketch11.addConstraint(Sketcher.Constraint("Equal", 3, 5))
sketch11.addConstraint(Sketcher.Constraint("Equal", 5, 7))
sketch11.addConstraint(Sketcher.Constraint("PointOnObject", 1, 3, -2))
sketch11.addConstraint(Sketcher.Constraint("Equal", 4, 2))
sketch11.addConstraint(Sketcher.Constraint("Radius", 1, 5.0))
sketch11.addConstraint(Sketcher.Constraint("DistanceX", 0, 1, 0, 2, 20.0))
sketch11.addConstraint(Sketcher.Constraint("DistanceY", -1, 1, 1, 3, 45.0))
pocket10 = body.newObject("PartDesign::Pocket", "Pocket009")
pocket10.Profile = sketch11
pocket10.Type = "UpToFirst"
pocket10.Reversed = True
doc.recompute()

fillet = body.newObject("PartDesign::Fillet", "Fillet")
fillet.Base = (pocket10, edges_at(pocket10, [
    (-85, 1.5, -100),
    (85, 1.5, -100),
    (125, 1.5, -76.906),
    (125, 1.5, 76.906),
    (85, 1.5, 100),
    (-85, 1.5, 100),
    (-125, 1.5, 76.906),
    (-125, 1.5, -76.906),
]))
fillet.Radius = 3

doc.recompute()
